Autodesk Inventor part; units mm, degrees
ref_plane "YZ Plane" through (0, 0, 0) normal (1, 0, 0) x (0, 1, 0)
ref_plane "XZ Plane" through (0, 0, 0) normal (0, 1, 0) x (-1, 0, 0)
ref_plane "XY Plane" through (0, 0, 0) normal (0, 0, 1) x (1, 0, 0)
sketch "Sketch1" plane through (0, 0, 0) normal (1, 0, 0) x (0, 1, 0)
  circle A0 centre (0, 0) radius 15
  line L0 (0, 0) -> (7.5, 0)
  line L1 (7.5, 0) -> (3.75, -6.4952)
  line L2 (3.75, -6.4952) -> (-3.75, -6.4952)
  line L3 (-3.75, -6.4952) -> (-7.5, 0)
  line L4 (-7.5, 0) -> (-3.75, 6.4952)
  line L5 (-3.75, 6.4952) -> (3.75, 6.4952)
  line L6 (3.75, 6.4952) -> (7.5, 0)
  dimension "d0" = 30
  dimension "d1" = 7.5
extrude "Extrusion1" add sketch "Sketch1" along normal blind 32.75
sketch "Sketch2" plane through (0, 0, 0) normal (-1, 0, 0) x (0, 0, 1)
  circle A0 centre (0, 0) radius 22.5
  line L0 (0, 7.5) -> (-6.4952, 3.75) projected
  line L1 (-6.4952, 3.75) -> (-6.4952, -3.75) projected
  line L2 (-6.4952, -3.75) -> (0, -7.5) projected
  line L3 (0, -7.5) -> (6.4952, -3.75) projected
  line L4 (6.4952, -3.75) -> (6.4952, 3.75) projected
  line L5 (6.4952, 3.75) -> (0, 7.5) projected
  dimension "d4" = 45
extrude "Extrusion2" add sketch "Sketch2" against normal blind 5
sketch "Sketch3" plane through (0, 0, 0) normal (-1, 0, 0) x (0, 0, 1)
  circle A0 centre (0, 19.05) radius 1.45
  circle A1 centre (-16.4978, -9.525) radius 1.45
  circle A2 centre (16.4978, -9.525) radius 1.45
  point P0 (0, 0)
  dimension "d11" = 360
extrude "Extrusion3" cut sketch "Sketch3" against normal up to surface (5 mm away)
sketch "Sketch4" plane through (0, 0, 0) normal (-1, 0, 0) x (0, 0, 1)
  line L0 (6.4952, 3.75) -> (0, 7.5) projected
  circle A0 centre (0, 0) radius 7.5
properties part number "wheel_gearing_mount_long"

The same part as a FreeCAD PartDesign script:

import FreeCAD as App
import Part
import Sketcher
from FreeCAD import Vector
Q = App.Units.Quantity

doc = App.newDocument("Part")
body = doc.addObject("PartDesign::Body", "Body")

# Sketch on YZ plane
sketch1 = body.newObject("Sketcher::SketchObject", "Sketch")
sketch1.AttachmentSupport = (doc.getObject("YZ_Plane"), [""])
sketch1.MapMode = "FlatFace"
sketch1.addGeometry([
    Part.Circle(Vector(0, 0, 0), Vector(0, 0, 1), 15),  # 0
    Part.LineSegment(Vector(4, 6, 0), Vector(8, 0, 0)),  # 1
    Part.LineSegment(Vector(8, 0, 0), Vector(4, -6, 0)),  # 2
    Part.LineSegment(Vector(4, -6, 0), Vector(-4, -6, 0)),  # 3
    Part.LineSegment(Vector(-4, -6, 0), Vector(-8, 0, 0)),  # 4
    Part.LineSegment(Vector(-8, 0, 0), Vector(-4, 6, 0)),  # 5
    Part.LineSegment(Vector(-4, 6, 0), Vector(4, 6, 0)),  # 6
], False)
sketch1.addConstraint([
    Sketcher.Constraint("Coincident", 1, 2, 2, 1),
    Sketcher.Constraint("Coincident", 2, 2, 3, 1),
    Sketcher.Constraint("Coincident", 3, 2, 4, 1),
    Sketcher.Constraint("Coincident", 4, 2, 5, 1),
    Sketcher.Constraint("Coincident", 5, 2, 6, 1),
    Sketcher.Constraint("Coincident", 6, 2, 1, 1),
    Sketcher.Constraint("Horizontal", 3),
    Sketcher.Constraint("Horizontal", 6),
    Sketcher.Constraint("Coincident", 0, 3, -1, 1),
    Sketcher.Constraint("Symmetric", 1, 2, 4, 2, -1, 1),
    Sketcher.Constraint("Symmetric", 2, 2, 5, 2, -1, 1),
    Sketcher.Constraint("PointOnObject", 1, 2, -1),
    Sketcher.Constraint("Parallel", 1, 4),
    Sketcher.Constraint("Vertical", 3, 2, 5, 2),
    Sketcher.Constraint("Diameter", 0, 30.0),
    Sketcher.Constraint("DistanceX", 3, 2, 3, 1, 7.5),
    Sketcher.Constraint("Distance", 1, 7.5),
    Sketcher.Constraint("DistanceX", -1, 1, 1, 2, 7.5),
])
pad1 = body.newObject("PartDesign::Pad", "Pad")
pad1.Profile = sketch1
pad1.Length = 32.75

# Sketch on YZ plane
sketch2 = body.newObject("Sketcher::SketchObject", "Sketch001")
sketch2.AttachmentSupport = (doc.getObject("YZ_Plane"), [""])
sketch2.MapMode = "FlatFace"
sketch2.addGeometry([
    Part.Circle(Vector(0, 0, 0), Vector(0, 0, 1), 22),  # 0
    Part.LineSegment(Vector(4, -6, 0), Vector(8, 0, 0)),  # 1
    Part.LineSegment(Vector(8, 0, 0), Vector(4, 6, 0)),  # 2
    Part.LineSegment(Vector(4, 6, 0), Vector(-4, 6, 0)),  # 3
    Part.LineSegment(Vector(-4, 6, 0), Vector(-8, 0, 0)),  # 4
    Part.LineSegment(Vector(-8, 0, 0), Vector(-4, -6, 0)),  # 5
    Part.LineSegment(Vector(-4, -6, 0), Vector(4, -6, 0)),  # 6
], False)
sketch2.addConstraint([
    Sketcher.Constraint("Coincident", 1, 2, 2, 1),
    Sketcher.Constraint("Coincident", 2, 2, 3, 1),
    Sketcher.Constraint("Coincident", 3, 2, 4, 1),
    Sketcher.Constraint("Coincident", 4, 2, 5, 1),
    Sketcher.Constraint("Coincident", 5, 2, 6, 1),
    Sketcher.Constraint("Coincident", 6, 2, 1, 1),
    Sketcher.Constraint("Horizontal", 3),
    Sketcher.Constraint("Horizontal", 6),
    Sketcher.Constraint("Coincident", 0, 3, -1, 1),
    Sketcher.Constraint("Symmetric", 1, 2, 4, 2, -1, 1),
    Sketcher.Constraint("Symmetric", 2, 2, 5, 2, -1, 1),
    Sketcher.Constraint("PointOnObject", 1, 2, -1),
    Sketcher.Constraint("Parallel", 1, 4),
    Sketcher.Constraint("Vertical", 3, 2, 5, 2),
    Sketcher.Constraint("Diameter", 0, 45.0),
    Sketcher.Constraint("Angle", 1, Q("60 deg")),
    Sketcher.Constraint("DistanceX", 3, 2, 3, 1, 7.5),
    Sketcher.Constraint("DistanceX", 4, 2, 1, 2, 15.0),
])
pad2 = body.newObject("PartDesign::Pad", "Pad001")
pad2.Profile = sketch2
pad2.Length = 5

# Sketch on YZ plane
sketch3 = body.newObject("Sketcher::SketchObject", "Sketch002")
sketch3.AttachmentSupport = (doc.getObject("YZ_Plane"), [""])
sketch3.MapMode = "FlatFace"
sketch3.addGeometry([
    Part.Circle(Vector(19.1, 0, 0), Vector(0, 0, 1), 1.4),
    Part.Circle(Vector(-9.5, -16.5, 0), Vector(0, 0, 1), 1.4),
    Part.Circle(Vector(-9.5, 16.5, 0), Vector(0, 0, 1), 1.4),
], False)
sketch3.addConstraint([
    Sketcher.Constraint("Equal", 0, 1),
    Sketcher.Constraint("Equal", 1, 2),
    Sketcher.Constraint("Symmetric", 1, 3, 2, 3, -1),
    Sketcher.Constraint("PointOnObject", 0, 3, -1),
    Sketcher.Constraint("Diameter", 0, 2.9),
    Sketcher.Constraint("DistanceX", -1, 1, 0, 3, 19.05),
    Sketcher.Constraint("DistanceX", 1, 3, -1, 1, 9.525),
    Sketcher.Constraint("DistanceY", 1, 3, -1, 1, 16.4978),
])
pocket1 = body.newObject("PartDesign::Pocket", "Pocket")
pocket1.Profile = sketch3
pocket1.Length = 5
pocket1.Reversed = True

doc.recompute()
